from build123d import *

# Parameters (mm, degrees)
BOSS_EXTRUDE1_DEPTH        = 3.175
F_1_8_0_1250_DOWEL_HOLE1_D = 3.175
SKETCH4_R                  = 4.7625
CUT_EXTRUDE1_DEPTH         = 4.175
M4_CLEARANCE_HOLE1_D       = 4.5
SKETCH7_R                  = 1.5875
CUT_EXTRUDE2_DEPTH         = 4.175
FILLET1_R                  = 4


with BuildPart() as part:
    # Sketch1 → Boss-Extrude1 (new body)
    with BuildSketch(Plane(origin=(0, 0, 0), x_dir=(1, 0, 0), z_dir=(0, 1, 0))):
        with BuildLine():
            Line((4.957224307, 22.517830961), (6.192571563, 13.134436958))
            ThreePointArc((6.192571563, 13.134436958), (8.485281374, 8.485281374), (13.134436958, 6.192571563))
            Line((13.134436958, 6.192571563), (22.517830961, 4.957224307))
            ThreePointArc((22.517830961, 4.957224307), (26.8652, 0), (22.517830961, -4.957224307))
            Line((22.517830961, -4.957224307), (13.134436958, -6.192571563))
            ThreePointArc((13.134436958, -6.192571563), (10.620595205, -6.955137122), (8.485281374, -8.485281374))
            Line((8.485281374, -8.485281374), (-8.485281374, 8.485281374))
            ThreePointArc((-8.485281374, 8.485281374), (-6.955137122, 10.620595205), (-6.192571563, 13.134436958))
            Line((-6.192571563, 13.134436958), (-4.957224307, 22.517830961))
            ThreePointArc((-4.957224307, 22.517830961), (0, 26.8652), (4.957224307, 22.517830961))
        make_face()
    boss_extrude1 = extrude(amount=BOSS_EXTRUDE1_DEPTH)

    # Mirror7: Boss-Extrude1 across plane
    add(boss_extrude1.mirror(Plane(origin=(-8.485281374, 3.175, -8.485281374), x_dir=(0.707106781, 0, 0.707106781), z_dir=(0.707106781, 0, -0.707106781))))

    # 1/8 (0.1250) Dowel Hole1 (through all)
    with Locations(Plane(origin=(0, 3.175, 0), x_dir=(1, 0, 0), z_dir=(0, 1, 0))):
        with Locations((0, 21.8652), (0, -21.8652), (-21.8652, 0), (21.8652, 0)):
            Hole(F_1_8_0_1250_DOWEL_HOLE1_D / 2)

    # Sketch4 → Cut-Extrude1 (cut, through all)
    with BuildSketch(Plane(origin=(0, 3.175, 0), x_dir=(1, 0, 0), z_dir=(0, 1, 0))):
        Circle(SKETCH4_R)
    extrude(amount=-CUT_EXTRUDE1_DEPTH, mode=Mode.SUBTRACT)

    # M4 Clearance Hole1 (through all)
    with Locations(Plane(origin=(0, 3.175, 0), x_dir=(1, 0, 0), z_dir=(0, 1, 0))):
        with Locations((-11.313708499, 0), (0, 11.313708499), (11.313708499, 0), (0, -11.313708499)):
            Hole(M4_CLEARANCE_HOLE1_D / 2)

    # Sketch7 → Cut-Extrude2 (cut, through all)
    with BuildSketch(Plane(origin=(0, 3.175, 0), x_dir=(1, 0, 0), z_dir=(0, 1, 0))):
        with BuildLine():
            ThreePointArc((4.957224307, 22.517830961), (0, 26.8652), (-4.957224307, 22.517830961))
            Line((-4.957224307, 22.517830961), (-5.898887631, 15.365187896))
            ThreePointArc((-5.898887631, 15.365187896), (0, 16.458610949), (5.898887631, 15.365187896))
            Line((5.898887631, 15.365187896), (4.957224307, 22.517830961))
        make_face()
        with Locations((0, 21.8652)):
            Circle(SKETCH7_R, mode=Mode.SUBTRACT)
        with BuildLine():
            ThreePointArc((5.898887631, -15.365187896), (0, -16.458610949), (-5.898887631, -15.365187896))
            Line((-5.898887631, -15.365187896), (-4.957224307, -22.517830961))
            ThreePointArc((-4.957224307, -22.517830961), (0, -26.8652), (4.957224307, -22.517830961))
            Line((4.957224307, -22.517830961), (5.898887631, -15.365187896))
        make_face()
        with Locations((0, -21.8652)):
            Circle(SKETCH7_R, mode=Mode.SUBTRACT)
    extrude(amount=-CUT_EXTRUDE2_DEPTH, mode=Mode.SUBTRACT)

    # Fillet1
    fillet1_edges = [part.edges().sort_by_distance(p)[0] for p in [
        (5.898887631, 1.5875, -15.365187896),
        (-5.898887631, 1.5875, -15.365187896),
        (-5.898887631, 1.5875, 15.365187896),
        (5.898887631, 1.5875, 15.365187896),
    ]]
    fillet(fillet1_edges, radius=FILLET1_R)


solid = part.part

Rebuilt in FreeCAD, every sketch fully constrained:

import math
import FreeCAD as App
import Part
import Sketcher

V = App.Vector
Q = App.Units.Quantity


def edges_at(feature, points):
    """Names of the edges that pass closest to the given points."""
    edges = feature.Shape.Edges
    near = lambda p: min(range(len(edges)), key=lambda i: edges[i].distToShape(Part.Vertex(*p))[0])
    return sorted({f"Edge{near(p) + 1}" for p in points})

doc = App.newDocument("Part")
body = doc.addObject("PartDesign::Body", "Body")

# Sketch on XZ plane
sketch1 = body.newObject("Sketcher::SketchObject", "Sketch")
sketch1.AttachmentSupport = (doc.getObject("XZ_Plane"), [""])
sketch1.MapMode = "FlatFace"
sketch1.addGeometry([
    Part.LineSegment(V(6, -13, 0), V(5, -23, 0)),  # 0
    Part.ArcOfCircle(Part.Circle(V(0, -22, 0), V(0, 0, 1), 5), math.radians(-173), math.radians(-7)),  # 1
    Part.LineSegment(V(-5, -23, 0), V(-6, -13, 0)),  # 2
    Part.ArcOfCircle(Part.Circle(V(-14, -14, 0), V(0, 0, 1), 8), math.radians(8), math.radians(45)),  # 3
    Part.LineSegment(V(-8, -8, 0), V(8, 8, 0)),  # 4
    Part.ArcOfCircle(Part.Circle(V(14, 14, 0), V(0, 0, 1), 8), math.radians(-135), math.radians(-98)),  # 5
    Part.LineSegment(V(13, 6, 0), V(23, 5, 0)),  # 6
    Part.ArcOfCircle(Part.Circle(V(22, 0, 0), V(0, 0, 1), 5), math.radians(-83), math.radians(83)),  # 7
    Part.LineSegment(V(23, -5, 0), V(13, -6, 0)),  # 8
    Part.ArcOfCircle(Part.Circle(V(14, -14, 0), V(0, 0, 1), 8), math.radians(97), math.radians(173)),  # 9
], False)
sketch1.addConstraint([
    Sketcher.Constraint("Tangent", 0, 2, 1, 2),
    Sketcher.Constraint("Tangent", 1, 1, 2, 1),
    Sketcher.Constraint("Tangent", 2, 2, 3, 1),
    Sketcher.Constraint("Coincident", 3, 2, 4, 1),
    Sketcher.Constraint("Coincident", 4, 2, 5, 1),
    Sketcher.Constraint("Tangent", 5, 2, 6, 1),
    Sketcher.Constraint("Tangent", 6, 2, 7, 2),
    Sketcher.Constraint("Tangent", 7, 1, 8, 1),
    Sketcher.Constraint("Tangent", 8, 2, 9, 1),
    Sketcher.Constraint("Tangent", 9, 2, 0, 1),
    Sketcher.Constraint("Equal", 3, 5),
    Sketcher.Constraint("Equal", 1, 7),
    Sketcher.Constraint("Equal", 5, 9),
    Sketcher.Constraint("Symmetric", 3, 3, 5, 3, -1, 1),
    Sketcher.Constraint("Symmetric", 3, 3, 9, 3, -2),
    Sketcher.Constraint("PointOnObject", 1, 3, -2),
    Sketcher.Constraint("PointOnObject", 7, 3, -1),
    Sketcher.Constraint("Perpendicular", 0, 6),
    Sketcher.Constraint("Equal", 2, 6),
    Sketcher.Constraint("Radius", 1, 5.0),
    Sketcher.Constraint("Angle", 4, Q("45 deg")),
    Sketcher.Constraint("Distance", 4, 24.0),
    Sketcher.Constraint("Angle", 0, Q("-97.5 deg")),
    Sketcher.Constraint("Radius", 3, 8.063323),
    Sketcher.Constraint("DistanceX", 3, 2, -1, 1, 8.485281),
])
pad1 = body.newObject("PartDesign::Pad", "Pad")
pad1.Profile = sketch1
pad1.Length = 3.175
pad1.Reversed = True
doc.recompute()

datumplane = body.newObject("PartDesign::Plane", "DatumPlane")
datumplane.Placement = App.Placement(V(0, 0, 0), App.Rotation(V(0.707106781, 0, 0.707106781), V(0, -1, 0), V(0.707106781, 0, -0.707106781), "ZXY"))
mirrored = body.newObject("PartDesign::Mirrored", "Mirrored")
mirrored.Originals = [pad1]
mirrored.MirrorPlane = (datumplane, [""])
body.Tip = mirrored

# Sketch on XZ plane
sketch2 = body.newObject("Sketcher::SketchObject", "Sketch001")
sketch2.AttachmentSupport = (doc.getObject("XZ_Plane"), [""])
sketch2.MapMode = "FlatFace"
sketch2.AttachmentOffset = App.Placement(V(0, 0, -3.175), App.Rotation())
sketch2.addGeometry([
    Part.Circle(V(0, -21.9, 0), V(0, 0, 1), 1.6),
    Part.Circle(V(0, 21.9, 0), V(0, 0, 1), 1.6),
    Part.Circle(V(-21.9, 0, 0), V(0, 0, 1), 1.6),
    Part.Circle(V(21.9, 0, 0), V(0, 0, 1), 1.6),
], False)
sketch2.addConstraint([
    Sketcher.Constraint("Equal", 0, 1),
    Sketcher.Constraint("Equal", 1, 2),
    Sketcher.Constraint("Equal", 2, 3),
    Sketcher.Constraint("Symmetric", 0, 3, 1, 3, -1, 1),
    Sketcher.Constraint("Symmetric", 2, 3, 3, 3, -1, 1),
    Sketcher.Constraint("PointOnObject", 0, 3, -2),
    Sketcher.Constraint("PointOnObject", 2, 3, -1),
    Sketcher.Constraint("Diameter", 0, 3.175),
    Sketcher.Constraint("DistanceY", 0, 3, -1, 1, 21.8652),
    Sketcher.Constraint("DistanceX", 2, 3, -1, 1, 21.8652),
])
doc.recompute()
hole = body.newObject("PartDesign::Hole", "Hole")
hole.Profile = sketch2
hole.ThreadType = "None"
hole.Diameter = 3.175
hole.DepthType = "ThroughAll"
hole.Reversed = True

# Sketch on XZ plane
sketch3 = body.newObject("Sketcher::SketchObject", "Sketch002")
sketch3.AttachmentSupport = (doc.getObject("XZ_Plane"), [""])
sketch3.MapMode = "FlatFace"
sketch3.AttachmentOffset = App.Placement(V(0, 0, -3.175), App.Rotation())
sketch3.addGeometry(Part.Circle(V(0, 0, 0), V(0, 0, 1), 4.8), False)
sketch3.addConstraint([
    Sketcher.Constraint("Coincident", 0, 3, -1, 1),
    Sketcher.Constraint("Diameter", 0, 9.525),
])
pocket1 = body.newObject("PartDesign::Pocket", "Pocket")
pocket1.Profile = sketch3
pocket1.Type = "ThroughAll"
pocket1.Reversed = True

# Sketch on XZ plane
sketch4 = body.newObject("Sketcher::SketchObject", "Sketch003")
sketch4.AttachmentSupport = (doc.getObject("XZ_Plane"), [""])
sketch4.MapMode = "FlatFace"
sketch4.AttachmentOffset = App.Placement(V(0, 0, -3.175), App.Rotation())
sketch4.addGeometry([
    Part.Circle(V(-11.3, 0, 0), V(0, 0, 1), 2.2),
    Part.Circle(V(0, -11.3, 0), V(0, 0, 1), 2.2),
    Part.Circle(V(11.3, 0, 0), V(0, 0, 1), 2.2),
    Part.Circle(V(0, 11.3, 0), V(0, 0, 1), 2.2),
], False)
sketch4.addConstraint([
    Sketcher.Constraint("Equal", 0, 1),
    Sketcher.Constraint("Equal", 1, 2),
    Sketcher.Constraint("Equal", 2, 3),
    Sketcher.Constraint("Symmetric", 0, 3, 2, 3, -1, 1),
    Sketcher.Constraint("Symmetric", 1, 3, 3, 3, -1, 1),
    Sketcher.Constraint("PointOnObject", 0, 3, -1),
    Sketcher.Constraint("PointOnObject", 1, 3, -2),
    Sketcher.Constraint("Diameter", 0, 4.5),
    Sketcher.Constraint("DistanceX", 0, 3, -1, 1, 11.313708),
    Sketcher.Constraint("DistanceY", 1, 3, -1, 1, 11.313708),
])
doc.recompute()
hole2 = body.newObject("PartDesign::Hole", "Hole001")
hole2.Profile = sketch4
hole2.ThreadType = "None"
hole2.Diameter = 4.5
hole2.DepthType = "ThroughAll"
hole2.Reversed = True

# Sketch on XZ plane
sketch5 = body.newObject("Sketcher::SketchObject", "Sketch004")
sketch5.AttachmentSupport = (doc.getObject("XZ_Plane"), [""])
sketch5.MapMode = "FlatFace"
sketch5.AttachmentOffset = App.Placement(V(0, 0, -3.175), App.Rotation())
sketch5.addGeometry([
    Part.ArcOfCircle(Part.Circle(V(0, -21.9, 0), V(0, 0, 1), 5), math.radians(-173), math.radians(-7)),  # 0
    Part.LineSegment(V(-5, -22.5, 0), V(-5.9, -15.4, 0)),  # 1
    Part.ArcOfCircle(Part.Circle(V(0, 0, 0), V(0, 0, 1), 16.5), math.radians(-111), math.radians(-69)),  # 2
    Part.LineSegment(V(5.9, -15.4, 0), V(5, -22.5, 0)),  # 3
    Part.Circle(V(0, -21.9, 0), V(0, 0, 1), 1.6),  # 4
    Part.ArcOfCircle(Part.Circle(V(0, 0, 0), V(0, 0, 1), 16.5), math.radians(69), math.radians(111)),  # 5
    Part.LineSegment(V(-5.9, 15.4, 0), V(-5, 22.5, 0)),  # 6
    Part.ArcOfCircle(Part.Circle(V(0, 21.9, 0), V(0, 0, 1), 5), math.radians(7), math.radians(173)),  # 7
    Part.LineSegment(V(5, 22.5, 0), V(5.9, 15.4, 0)),  # 8
    Part.Circle(V(0, 21.9, 0), V(0, 0, 1), 1.6),  # 9
], False)
sketch5.addConstraint([
    Sketcher.Constraint("Tangent", 0, 1, 1, 1),
    Sketcher.Constraint("Coincident", 1, 2, 2, 1),
    Sketcher.Constraint("Coincident", 2, 2, 3, 1),
    Sketcher.Constraint("Tangent", 3, 2, 0, 2),
    Sketcher.Constraint("Coincident", 5, 2, 6, 1),
    Sketcher.Constraint("Tangent", 6, 2, 7, 2),
    Sketcher.Constraint("Tangent", 7, 1, 8, 1),
    Sketcher.Constraint("Coincident", 8, 2, 5, 1),
    Sketcher.Constraint("Coincident", 2, 3, -1, 1),
    Sketcher.Constraint("Coincident", 5, 3, -1, 1),
    Sketcher.Constraint("Coincident", 4, 3, 0, 3),
    Sketcher.Constraint("Coincident", 9, 3, 7, 3),
    Sketcher.Constraint("Equal", 2, 5),
    Sketcher.Constraint("Equal", 0, 7),
    Sketcher.Constraint("Equal", 4, 9),
    Sketcher.Constraint("Symmetric", 0, 3, 7, 3, -1, 1),
    Sketcher.Constraint("Symmetric", 0, 1, 3, 2, -2),
    Sketcher.Constraint("Parallel", 3, 6),
    Sketcher.Constraint("Parallel", 1, 8),
    Sketcher.Constraint("Radius", 0, 5.0),
    Sketcher.Constraint("Diameter", 4, 3.175),
    Sketcher.Constraint("Angle", 1, Q("97.5 deg")),
    Sketcher.Constraint("Radius", 2, 16.458611),
    Sketcher.Constraint("DistanceY", 0, 3, -1, 1, 21.8652),
])
pocket2 = body.newObject("PartDesign::Pocket", "Pocket001")
pocket2.Profile = sketch5
pocket2.Type = "ThroughAll"
pocket2.Reversed = True
doc.recompute()

fillet = body.newObject("PartDesign::Fillet", "Fillet")
fillet.Base = (pocket2, edges_at(pocket2, [
    (5.899, 1.587, -15.365),
    (-5.899, 1.587, -15.365),
    (-5.899, 1.587, 15.365),
    (5.899, 1.587, 15.365),
]))
fillet.Radius = 4

doc.recompute()
